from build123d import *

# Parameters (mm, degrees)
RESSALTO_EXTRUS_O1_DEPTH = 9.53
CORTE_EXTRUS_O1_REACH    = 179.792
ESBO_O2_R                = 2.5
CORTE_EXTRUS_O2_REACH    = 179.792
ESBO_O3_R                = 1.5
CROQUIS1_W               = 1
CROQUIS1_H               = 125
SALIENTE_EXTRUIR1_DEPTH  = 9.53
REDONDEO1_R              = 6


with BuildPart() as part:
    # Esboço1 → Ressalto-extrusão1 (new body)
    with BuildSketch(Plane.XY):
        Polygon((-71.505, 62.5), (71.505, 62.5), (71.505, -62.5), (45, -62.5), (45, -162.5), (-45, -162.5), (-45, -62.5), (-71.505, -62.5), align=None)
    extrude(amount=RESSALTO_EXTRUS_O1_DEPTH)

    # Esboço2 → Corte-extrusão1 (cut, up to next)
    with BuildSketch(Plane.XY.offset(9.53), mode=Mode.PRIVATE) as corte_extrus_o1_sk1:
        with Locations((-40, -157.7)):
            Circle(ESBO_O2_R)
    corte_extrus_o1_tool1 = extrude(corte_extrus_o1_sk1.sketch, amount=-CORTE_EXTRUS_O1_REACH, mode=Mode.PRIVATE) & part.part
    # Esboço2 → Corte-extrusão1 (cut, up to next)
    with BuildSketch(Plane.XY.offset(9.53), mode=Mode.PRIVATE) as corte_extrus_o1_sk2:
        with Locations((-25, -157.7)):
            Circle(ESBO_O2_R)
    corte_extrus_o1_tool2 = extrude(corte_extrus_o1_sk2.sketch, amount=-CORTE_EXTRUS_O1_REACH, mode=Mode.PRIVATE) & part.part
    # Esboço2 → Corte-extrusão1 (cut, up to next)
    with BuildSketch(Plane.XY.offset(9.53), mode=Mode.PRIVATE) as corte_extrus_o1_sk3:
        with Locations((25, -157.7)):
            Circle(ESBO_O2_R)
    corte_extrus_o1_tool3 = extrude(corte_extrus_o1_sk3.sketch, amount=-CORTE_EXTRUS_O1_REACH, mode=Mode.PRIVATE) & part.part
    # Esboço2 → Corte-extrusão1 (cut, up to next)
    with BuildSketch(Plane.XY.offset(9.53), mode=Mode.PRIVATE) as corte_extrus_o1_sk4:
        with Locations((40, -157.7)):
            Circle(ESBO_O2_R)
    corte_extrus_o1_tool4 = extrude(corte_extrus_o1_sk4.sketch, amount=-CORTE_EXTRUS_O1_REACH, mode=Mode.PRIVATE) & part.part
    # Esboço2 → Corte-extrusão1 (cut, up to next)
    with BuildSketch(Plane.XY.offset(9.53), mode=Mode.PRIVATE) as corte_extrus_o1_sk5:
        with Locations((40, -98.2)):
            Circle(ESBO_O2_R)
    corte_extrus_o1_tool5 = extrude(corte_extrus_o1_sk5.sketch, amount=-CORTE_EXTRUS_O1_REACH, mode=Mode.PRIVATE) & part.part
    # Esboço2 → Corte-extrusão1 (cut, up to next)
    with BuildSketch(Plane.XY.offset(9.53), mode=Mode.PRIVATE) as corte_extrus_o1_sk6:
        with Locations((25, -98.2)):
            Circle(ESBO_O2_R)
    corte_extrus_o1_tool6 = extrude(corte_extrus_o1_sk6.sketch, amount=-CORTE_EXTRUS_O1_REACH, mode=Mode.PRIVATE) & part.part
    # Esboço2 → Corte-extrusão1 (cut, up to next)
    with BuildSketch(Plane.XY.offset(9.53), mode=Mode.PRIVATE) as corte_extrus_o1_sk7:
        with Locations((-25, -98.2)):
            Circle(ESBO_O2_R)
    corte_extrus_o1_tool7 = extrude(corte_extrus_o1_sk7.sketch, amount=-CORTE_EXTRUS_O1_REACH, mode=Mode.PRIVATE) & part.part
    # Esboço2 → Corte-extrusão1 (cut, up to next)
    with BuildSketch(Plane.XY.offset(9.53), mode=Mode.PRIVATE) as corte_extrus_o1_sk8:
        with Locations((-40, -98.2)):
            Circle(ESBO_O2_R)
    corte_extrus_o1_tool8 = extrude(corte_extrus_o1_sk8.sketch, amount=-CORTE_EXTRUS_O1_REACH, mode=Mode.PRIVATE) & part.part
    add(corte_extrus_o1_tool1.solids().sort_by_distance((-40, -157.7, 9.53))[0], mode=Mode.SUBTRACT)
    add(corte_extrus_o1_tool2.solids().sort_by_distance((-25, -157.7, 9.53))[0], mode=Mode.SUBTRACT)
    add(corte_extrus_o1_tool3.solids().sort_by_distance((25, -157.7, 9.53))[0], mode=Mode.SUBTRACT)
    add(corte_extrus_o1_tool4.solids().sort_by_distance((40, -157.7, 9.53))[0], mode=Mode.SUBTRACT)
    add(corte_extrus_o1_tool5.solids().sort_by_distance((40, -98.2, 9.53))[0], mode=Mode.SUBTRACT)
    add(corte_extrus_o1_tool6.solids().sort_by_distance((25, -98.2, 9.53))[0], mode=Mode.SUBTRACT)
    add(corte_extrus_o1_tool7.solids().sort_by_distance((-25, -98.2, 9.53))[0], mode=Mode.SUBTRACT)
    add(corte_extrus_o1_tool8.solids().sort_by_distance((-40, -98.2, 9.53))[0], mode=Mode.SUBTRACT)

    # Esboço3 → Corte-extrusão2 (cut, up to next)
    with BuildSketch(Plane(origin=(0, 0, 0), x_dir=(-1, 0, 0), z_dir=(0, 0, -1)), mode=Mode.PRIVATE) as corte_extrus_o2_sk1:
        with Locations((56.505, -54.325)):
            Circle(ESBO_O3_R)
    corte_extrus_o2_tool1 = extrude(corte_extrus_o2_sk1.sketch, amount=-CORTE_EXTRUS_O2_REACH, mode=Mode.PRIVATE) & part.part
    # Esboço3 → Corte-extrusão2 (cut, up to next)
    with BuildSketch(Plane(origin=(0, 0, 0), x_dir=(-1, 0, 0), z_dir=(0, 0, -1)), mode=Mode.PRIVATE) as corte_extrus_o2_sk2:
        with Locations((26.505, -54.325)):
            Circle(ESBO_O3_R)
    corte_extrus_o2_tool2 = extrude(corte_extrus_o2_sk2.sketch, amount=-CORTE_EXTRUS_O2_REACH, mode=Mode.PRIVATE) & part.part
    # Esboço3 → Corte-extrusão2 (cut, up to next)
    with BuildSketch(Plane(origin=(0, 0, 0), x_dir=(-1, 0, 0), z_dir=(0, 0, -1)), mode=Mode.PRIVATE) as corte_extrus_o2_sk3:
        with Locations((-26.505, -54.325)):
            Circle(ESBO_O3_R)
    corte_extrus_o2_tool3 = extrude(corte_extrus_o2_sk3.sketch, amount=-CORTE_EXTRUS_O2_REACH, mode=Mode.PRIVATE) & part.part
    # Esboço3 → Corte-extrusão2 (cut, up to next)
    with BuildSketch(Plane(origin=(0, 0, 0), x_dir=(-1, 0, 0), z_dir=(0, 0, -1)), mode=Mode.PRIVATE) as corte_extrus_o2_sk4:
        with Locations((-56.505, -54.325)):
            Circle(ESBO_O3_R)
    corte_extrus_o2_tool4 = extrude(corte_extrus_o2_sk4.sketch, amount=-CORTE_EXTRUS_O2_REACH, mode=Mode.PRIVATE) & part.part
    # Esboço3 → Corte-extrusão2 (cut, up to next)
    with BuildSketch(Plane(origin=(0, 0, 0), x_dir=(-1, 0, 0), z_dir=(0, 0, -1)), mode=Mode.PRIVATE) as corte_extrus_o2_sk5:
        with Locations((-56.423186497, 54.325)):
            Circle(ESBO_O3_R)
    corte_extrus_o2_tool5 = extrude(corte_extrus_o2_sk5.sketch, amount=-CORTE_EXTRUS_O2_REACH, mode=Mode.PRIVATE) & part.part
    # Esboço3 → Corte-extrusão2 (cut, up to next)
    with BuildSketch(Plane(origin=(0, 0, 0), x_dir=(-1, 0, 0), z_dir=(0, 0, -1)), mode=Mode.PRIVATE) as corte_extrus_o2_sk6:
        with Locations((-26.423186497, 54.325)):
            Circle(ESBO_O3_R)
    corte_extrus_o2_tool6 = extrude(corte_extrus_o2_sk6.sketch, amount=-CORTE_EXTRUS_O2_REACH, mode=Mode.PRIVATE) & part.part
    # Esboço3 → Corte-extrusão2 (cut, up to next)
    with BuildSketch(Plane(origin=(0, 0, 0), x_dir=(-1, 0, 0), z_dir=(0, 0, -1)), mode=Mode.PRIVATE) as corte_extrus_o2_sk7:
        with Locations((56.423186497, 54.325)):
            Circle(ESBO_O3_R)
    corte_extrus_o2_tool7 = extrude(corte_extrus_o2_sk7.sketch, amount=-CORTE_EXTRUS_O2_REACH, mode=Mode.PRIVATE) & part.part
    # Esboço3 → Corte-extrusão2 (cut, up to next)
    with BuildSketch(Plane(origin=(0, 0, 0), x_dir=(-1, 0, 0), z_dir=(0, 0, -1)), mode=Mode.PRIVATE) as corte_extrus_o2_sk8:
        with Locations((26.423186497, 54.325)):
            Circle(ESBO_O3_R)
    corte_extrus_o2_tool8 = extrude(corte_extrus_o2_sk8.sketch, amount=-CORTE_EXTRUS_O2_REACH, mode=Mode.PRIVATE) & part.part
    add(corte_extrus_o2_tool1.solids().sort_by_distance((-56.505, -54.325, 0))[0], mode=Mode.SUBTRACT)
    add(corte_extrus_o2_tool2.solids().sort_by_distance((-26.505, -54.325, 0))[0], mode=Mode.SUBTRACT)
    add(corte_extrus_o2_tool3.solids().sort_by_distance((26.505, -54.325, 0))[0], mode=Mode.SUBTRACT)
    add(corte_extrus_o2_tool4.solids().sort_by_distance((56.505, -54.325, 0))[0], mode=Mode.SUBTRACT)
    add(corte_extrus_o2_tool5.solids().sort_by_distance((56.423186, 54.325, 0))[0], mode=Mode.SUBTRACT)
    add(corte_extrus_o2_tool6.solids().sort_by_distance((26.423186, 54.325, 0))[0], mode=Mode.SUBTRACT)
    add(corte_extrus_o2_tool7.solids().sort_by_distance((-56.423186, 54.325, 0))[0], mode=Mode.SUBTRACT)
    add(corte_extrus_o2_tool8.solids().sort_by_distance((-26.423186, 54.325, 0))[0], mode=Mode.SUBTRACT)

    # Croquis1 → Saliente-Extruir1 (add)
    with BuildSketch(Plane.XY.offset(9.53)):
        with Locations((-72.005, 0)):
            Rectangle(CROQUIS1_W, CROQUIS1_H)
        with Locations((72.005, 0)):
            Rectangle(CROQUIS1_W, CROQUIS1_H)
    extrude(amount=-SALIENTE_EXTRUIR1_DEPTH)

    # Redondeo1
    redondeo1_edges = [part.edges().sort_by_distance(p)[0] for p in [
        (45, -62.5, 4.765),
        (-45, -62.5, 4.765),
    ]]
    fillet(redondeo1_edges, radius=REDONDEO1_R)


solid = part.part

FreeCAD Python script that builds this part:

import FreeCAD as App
import Part
import Sketcher
Q = App.Units.Quantity


def edges_at(feature, points):
    """Names of the edges that pass closest to the given points."""
    edges = feature.Shape.Edges
    near = lambda p: min(range(len(edges)), key=lambda i: edges[i].distToShape(Part.Vertex(*p))[0])
    return sorted({f"Edge{near(p) + 1}" for p in points})

doc = App.newDocument("Part")
body = doc.addObject("PartDesign::Body", "Body")

sketch1 = body.newObject("Sketcher::SketchObject", "Sketch")
sketch1.AttachmentSupport = (doc.getObject("XY_Plane"), [""])
sketch1.MapMode = "FlatFace"
sketch1.addGeometry(Part.LineSegment(App.Vector(71.505, 62.5, 0), App.Vector(-71.505, 62.5, 0)), False)
sketch1.addGeometry(Part.LineSegment(App.Vector(-71.505, 62.5, 0), App.Vector(-71.505, -62.5, 0)), False)
sketch1.addGeometry(Part.LineSegment(App.Vector(-71.505, -62.5, 0), App.Vector(-45, -62.5, 0)), False)
sketch1.addGeometry(Part.LineSegment(App.Vector(-45, -62.5, 0), App.Vector(-45, -162.5, 0)), False)
sketch1.addGeometry(Part.LineSegment(App.Vector(-45, -162.5, 0), App.Vector(45, -162.5, 0)), False)
sketch1.addGeometry(Part.LineSegment(App.Vector(45, -162.5, 0), App.Vector(45, -62.5, 0)), False)
sketch1.addGeometry(Part.LineSegment(App.Vector(45, -62.5, 0), App.Vector(71.505, -62.5, 0)), False)
sketch1.addGeometry(Part.LineSegment(App.Vector(71.505, -62.5, 0), App.Vector(71.505, 62.5, 0)), False)
sketch1.addConstraint(Sketcher.Constraint("Coincident", 0, 2, 1, 1))
sketch1.addConstraint(Sketcher.Constraint("Coincident", 1, 2, 2, 1))
sketch1.addConstraint(Sketcher.Constraint("Coincident", 2, 2, 3, 1))
sketch1.addConstraint(Sketcher.Constraint("Coincident", 3, 2, 4, 1))
sketch1.addConstraint(Sketcher.Constraint("Coincident", 4, 2, 5, 1))
sketch1.addConstraint(Sketcher.Constraint("Coincident", 5, 2, 6, 1))
sketch1.addConstraint(Sketcher.Constraint("Coincident", 6, 2, 7, 1))
sketch1.addConstraint(Sketcher.Constraint("Coincident", 7, 2, 0, 1))
sketch1.addConstraint(Sketcher.Constraint("Horizontal", 0))
sketch1.addConstraint(Sketcher.Constraint("Vertical", 1))
sketch1.addConstraint(Sketcher.Constraint("Horizontal", 2))
sketch1.addConstraint(Sketcher.Constraint("Vertical", 3))
sketch1.addConstraint(Sketcher.Constraint("Horizontal", 4))
sketch1.addConstraint(Sketcher.Constraint("Vertical", 5))
sketch1.addConstraint(Sketcher.Constraint("Horizontal", 6))
sketch1.addConstraint(Sketcher.Constraint("Vertical", 7))
sketch1.addConstraint(Sketcher.Constraint("Symmetric", 0, 2, 6, 2, -1, 1))
sketch1.addConstraint(Sketcher.Constraint("Symmetric", 2, 2, 5, 2, -2))
sketch1.addConstraint(Sketcher.Constraint("DistanceX", 4, 1, 4, 2, Q("90 mm")))
sketch1.addConstraint(Sketcher.Constraint("DistanceY", 1, 2, 1, 1, Q("125 mm")))
sketch1.addConstraint(Sketcher.Constraint("DistanceY", 3, 2, 3, 1, Q("100 mm")))
sketch1.addConstraint(Sketcher.Constraint("DistanceX", 0, 2, 0, 1, Q("143.01 mm")))
pad1 = body.newObject("PartDesign::Pad", "Pad")
pad1.Profile = sketch1
pad1.Length = 9.53

sketch2 = body.newObject("Sketcher::SketchObject", "Sketch001")
sketch2.AttachmentSupport = (doc.getObject("XY_Plane"), [""])
sketch2.MapMode = "FlatFace"
sketch2.AttachmentOffset = App.Placement(App.Vector(0, 0, 9.53), App.Rotation())
sketch2.addGeometry(Part.Circle(App.Vector(-40, -157.7, 0), App.Vector(0, 0, 1), 2.5), False)
sketch2.addConstraint(Sketcher.Constraint("Diameter", 0, Q("5 mm")))
sketch2.addConstraint(Sketcher.Constraint("DistanceX", 0, 3, -1, 1, Q("40 mm")))
sketch2.addConstraint(Sketcher.Constraint("DistanceY", 0, 3, -1, 1, Q("157.7 mm")))
pocket1 = body.newObject("PartDesign::Pocket", "Pocket")
pocket1.Profile = sketch2
pocket1.Type = "UpToFirst"

sketch3 = body.newObject("Sketcher::SketchObject", "Sketch002")
sketch3.AttachmentSupport = (doc.getObject("XY_Plane"), [""])
sketch3.MapMode = "FlatFace"
sketch3.AttachmentOffset = App.Placement(App.Vector(0, 0, 9.53), App.Rotation())
sketch3.addGeometry(Part.Circle(App.Vector(-25, -157.7, 0), App.Vector(0, 0, 1), 2.5), False)
sketch3.addConstraint(Sketcher.Constraint("Diameter", 0, Q("5 mm")))
sketch3.addConstraint(Sketcher.Constraint("DistanceX", 0, 3, -1, 1, Q("25 mm")))
sketch3.addConstraint(Sketcher.Constraint("DistanceY", 0, 3, -1, 1, Q("157.7 mm")))
pocket2 = body.newObject("PartDesign::Pocket", "Pocket001")
pocket2.Profile = sketch3
pocket2.Type = "UpToFirst"

sketch4 = body.newObject("Sketcher::SketchObject", "Sketch003")
sketch4.AttachmentSupport = (doc.getObject("XY_Plane"), [""])
sketch4.MapMode = "FlatFace"
sketch4.AttachmentOffset = App.Placement(App.Vector(0, 0, 9.53), App.Rotation())
sketch4.addGeometry(Part.Circle(App.Vector(25, -157.7, 0), App.Vector(0, 0, 1), 2.5), False)
sketch4.addConstraint(Sketcher.Constraint("Diameter", 0, Q("5 mm")))
sketch4.addConstraint(Sketcher.Constraint("DistanceX", -1, 1, 0, 3, Q("25 mm")))
sketch4.addConstraint(Sketcher.Constraint("DistanceY", 0, 3, -1, 1, Q("157.7 mm")))
pocket3 = body.newObject("PartDesign::Pocket", "Pocket002")
pocket3.Profile = sketch4
pocket3.Type = "UpToFirst"

sketch5 = body.newObject("Sketcher::SketchObject", "Sketch004")
sketch5.AttachmentSupport = (doc.getObject("XY_Plane"), [""])
sketch5.MapMode = "FlatFace"
sketch5.AttachmentOffset = App.Placement(App.Vector(0, 0, 9.53), App.Rotation())
sketch5.addGeometry(Part.Circle(App.Vector(40, -157.7, 0), App.Vector(0, 0, 1), 2.5), False)
sketch5.addConstraint(Sketcher.Constraint("Diameter", 0, Q("5 mm")))
sketch5.addConstraint(Sketcher.Constraint("DistanceX", -1, 1, 0, 3, Q("40 mm")))
sketch5.addConstraint(Sketcher.Constraint("DistanceY", 0, 3, -1, 1, Q("157.7 mm")))
pocket4 = body.newObject("PartDesign::Pocket", "Pocket003")
pocket4.Profile = sketch5
pocket4.Type = "UpToFirst"

sketch6 = body.newObject("Sketcher::SketchObject", "Sketch005")
sketch6.AttachmentSupport = (doc.getObject("XY_Plane"), [""])
sketch6.MapMode = "FlatFace"
sketch6.AttachmentOffset = App.Placement(App.Vector(0, 0, 9.53), App.Rotation())
sketch6.addGeometry(Part.Circle(App.Vector(40, -98.2, 0), App.Vector(0, 0, 1), 2.5), False)
sketch6.addConstraint(Sketcher.Constraint("Diameter", 0, Q("5 mm")))
sketch6.addConstraint(Sketcher.Constraint("DistanceX", -1, 1, 0, 3, Q("40 mm")))
sketch6.addConstraint(Sketcher.Constraint("DistanceY", 0, 3, -1, 1, Q("98.2 mm")))
pocket5 = body.newObject("PartDesign::Pocket", "Pocket004")
pocket5.Profile = sketch6
pocket5.Type = "UpToFirst"

sketch7 = body.newObject("Sketcher::SketchObject", "Sketch006")
sketch7.AttachmentSupport = (doc.getObject("XY_Plane"), [""])
sketch7.MapMode = "FlatFace"
sketch7.AttachmentOffset = App.Placement(App.Vector(0, 0, 9.53), App.Rotation())
sketch7.addGeometry(Part.Circle(App.Vector(25, -98.2, 0), App.Vector(0, 0, 1), 2.5), False)
sketch7.addConstraint(Sketcher.Constraint("Diameter", 0, Q("5 mm")))
sketch7.addConstraint(Sketcher.Constraint("DistanceX", -1, 1, 0, 3, Q("25 mm")))
sketch7.addConstraint(Sketcher.Constraint("DistanceY", 0, 3, -1, 1, Q("98.2 mm")))
pocket6 = body.newObject("PartDesign::Pocket", "Pocket005")
pocket6.Profile = sketch7
pocket6.Type = "UpToFirst"

sketch8 = body.newObject("Sketcher::SketchObject", "Sketch007")
sketch8.AttachmentSupport = (doc.getObject("XY_Plane"), [""])
sketch8.MapMode = "FlatFace"
sketch8.AttachmentOffset = App.Placement(App.Vector(0, 0, 9.53), App.Rotation())
sketch8.addGeometry(Part.Circle(App.Vector(-25, -98.2, 0), App.Vector(0, 0, 1), 2.5), False)
sketch8.addConstraint(Sketcher.Constraint("Diameter", 0, Q("5 mm")))
sketch8.addConstraint(Sketcher.Constraint("DistanceX", 0, 3, -1, 1, Q("25 mm")))
sketch8.addConstraint(Sketcher.Constraint("DistanceY", 0, 3, -1, 1, Q("98.2 mm")))
pocket7 = body.newObject("PartDesign::Pocket", "Pocket006")
pocket7.Profile = sketch8
pocket7.Type = "UpToFirst"

sketch9 = body.newObject("Sketcher::SketchObject", "Sketch008")
sketch9.AttachmentSupport = (doc.getObject("XY_Plane"), [""])
sketch9.MapMode = "FlatFace"
sketch9.AttachmentOffset = App.Placement(App.Vector(0, 0, 9.53), App.Rotation())
sketch9.addGeometry(Part.Circle(App.Vector(-40, -98.2, 0), App.Vector(0, 0, 1), 2.5), False)
sketch9.addConstraint(Sketcher.Constraint("Diameter", 0, Q("5 mm")))
sketch9.addConstraint(Sketcher.Constraint("DistanceX", 0, 3, -1, 1, Q("40 mm")))
sketch9.addConstraint(Sketcher.Constraint("DistanceY", 0, 3, -1, 1, Q("98.2 mm")))
pocket8 = body.newObject("PartDesign::Pocket", "Pocket007")
pocket8.Profile = sketch9
pocket8.Type = "UpToFirst"

sketch10 = body.newObject("Sketcher::SketchObject", "Sketch009")
sketch10.AttachmentSupport = (doc.getObject("XY_Plane"), [""])
sketch10.MapMode = "FlatFace"
sketch10.addGeometry(Part.Circle(App.Vector(-56.505, -54.325, 0), App.Vector(0, 0, 1), 1.5), False)
sketch10.addConstraint(Sketcher.Constraint("Diameter", 0, Q("3 mm")))
sketch10.addConstraint(Sketcher.Constraint("DistanceX", 0, 3, -1, 1, Q("56.505 mm")))
sketch10.addConstraint(Sketcher.Constraint("DistanceY", 0, 3, -1, 1, Q("54.325 mm")))
pocket9 = body.newObject("PartDesign::Pocket", "Pocket008")
pocket9.Profile = sketch10
pocket9.Type = "UpToFirst"
pocket9.Reversed = True

sketch11 = body.newObject("Sketcher::SketchObject", "Sketch010")
sketch11.AttachmentSupport = (doc.getObject("XY_Plane"), [""])
sketch11.MapMode = "FlatFace"
sketch11.addGeometry(Part.Circle(App.Vector(-26.505, -54.325, 0), App.Vector(0, 0, 1), 1.5), False)
sketch11.addConstraint(Sketcher.Constraint("Diameter", 0, Q("3 mm")))
sketch11.addConstraint(Sketcher.Constraint("DistanceX", 0, 3, -1, 1, Q("26.505 mm")))
sketch11.addConstraint(Sketcher.Constraint("DistanceY", 0, 3, -1, 1, Q("54.325 mm")))
pocket10 = body.newObject("PartDesign::Pocket", "Pocket009")
pocket10.Profile = sketch11
pocket10.Type = "UpToFirst"
pocket10.Reversed = True

sketch12 = body.newObject("Sketcher::SketchObject", "Sketch011")
sketch12.AttachmentSupport = (doc.getObject("XY_Plane"), [""])
sketch12.MapMode = "FlatFace"
sketch12.addGeometry(Part.Circle(App.Vector(26.505, -54.325, 0), App.Vector(0, 0, 1), 1.5), False)
sketch12.addConstraint(Sketcher.Constraint("Diameter", 0, Q("3 mm")))
sketch12.addConstraint(Sketcher.Constraint("DistanceX", -1, 1, 0, 3, Q("26.505 mm")))
sketch12.addConstraint(Sketcher.Constraint("DistanceY", 0, 3, -1, 1, Q("54.325 mm")))
pocket11 = body.newObject("PartDesign::Pocket", "Pocket010")
pocket11.Profile = sketch12
pocket11.Type = "UpToFirst"
pocket11.Reversed = True

sketch13 = body.newObject("Sketcher::SketchObject", "Sketch012")
sketch13.AttachmentSupport = (doc.getObject("XY_Plane"), [""])
sketch13.MapMode = "FlatFace"
sketch13.addGeometry(Part.Circle(App.Vector(56.505, -54.325, 0), App.Vector(0, 0, 1), 1.5), False)
sketch13.addConstraint(Sketcher.Constraint("Diameter", 0, Q("3 mm")))
sketch13.addConstraint(Sketcher.Constraint("DistanceX", -1, 1, 0, 3, Q("56.505 mm")))
sketch13.addConstraint(Sketcher.Constraint("DistanceY", 0, 3, -1, 1, Q("54.325 mm")))
pocket12 = body.newObject("PartDesign::Pocket", "Pocket011")
pocket12.Profile = sketch13
pocket12.Type = "UpToFirst"
pocket12.Reversed = True

sketch14 = body.newObject("Sketcher::SketchObject", "Sketch013")
sketch14.AttachmentSupport = (doc.getObject("XY_Plane"), [""])
sketch14.MapMode = "FlatFace"
sketch14.addGeometry(Part.Circle(App.Vector(56.423186, 54.325, 0), App.Vector(0, 0, 1), 1.5), False)
sketch14.addConstraint(Sketcher.Constraint("Diameter", 0, Q("3 mm")))
sketch14.addConstraint(Sketcher.Constraint("DistanceY", -1, 1, 0, 3, Q("54.325 mm")))
sketch14.addConstraint(Sketcher.Constraint("DistanceX", -1, 1, 0, 3, Q("56.423186 mm")))
pocket13 = body.newObject("PartDesign::Pocket", "Pocket012")
pocket13.Profile = sketch14
pocket13.Type = "UpToFirst"
pocket13.Reversed = True

sketch15 = body.newObject("Sketcher::SketchObject", "Sketch014")
sketch15.AttachmentSupport = (doc.getObject("XY_Plane"), [""])
sketch15.MapMode = "FlatFace"
sketch15.addGeometry(Part.Circle(App.Vector(26.423186, 54.325, 0), App.Vector(0, 0, 1), 1.5), False)
sketch15.addConstraint(Sketcher.Constraint("Diameter", 0, Q("3 mm")))
sketch15.addConstraint(Sketcher.Constraint("DistanceY", -1, 1, 0, 3, Q("54.325 mm")))
sketch15.addConstraint(Sketcher.Constraint("DistanceX", -1, 1, 0, 3, Q("26.423186 mm")))
pocket14 = body.newObject("PartDesign::Pocket", "Pocket013")
pocket14.Profile = sketch15
pocket14.Type = "UpToFirst"
pocket14.Reversed = True

sketch16 = body.newObject("Sketcher::SketchObject", "Sketch015")
sketch16.AttachmentSupport = (doc.getObject("XY_Plane"), [""])
sketch16.MapMode = "FlatFace"
sketch16.addGeometry(Part.Circle(App.Vector(-56.423186, 54.325, 0), App.Vector(0, 0, 1), 1.5), False)
sketch16.addConstraint(Sketcher.Constraint("Diameter", 0, Q("3 mm")))
sketch16.addConstraint(Sketcher.Constraint("DistanceY", -1, 1, 0, 3, Q("54.325 mm")))
sketch16.addConstraint(Sketcher.Constraint("DistanceX", 0, 3, -1, 1, Q("56.423186 mm")))
pocket15 = body.newObject("PartDesign::Pocket", "Pocket014")
pocket15.Profile = sketch16
pocket15.Type = "UpToFirst"
pocket15.Reversed = True

sketch17 = body.newObject("Sketcher::SketchObject", "Sketch016")
sketch17.AttachmentSupport = (doc.getObject("XY_Plane"), [""])
sketch17.MapMode = "FlatFace"
sketch17.addGeometry(Part.Circle(App.Vector(-26.423186, 54.325, 0), App.Vector(0, 0, 1), 1.5), False)
sketch17.addConstraint(Sketcher.Constraint("Diameter", 0, Q("3 mm")))
sketch17.addConstraint(Sketcher.Constraint("DistanceY", -1, 1, 0, 3, Q("54.325 mm")))
sketch17.addConstraint(Sketcher.Constraint("DistanceX", 0, 3, -1, 1, Q("26.423186 mm")))
pocket16 = body.newObject("PartDesign::Pocket", "Pocket015")
pocket16.Profile = sketch17
pocket16.Type = "UpToFirst"
pocket16.Reversed = True

sketch18 = body.newObject("Sketcher::SketchObject", "Sketch017")
sketch18.AttachmentSupport = (doc.getObject("XY_Plane"), [""])
sketch18.MapMode = "FlatFace"
sketch18.AttachmentOffset = App.Placement(App.Vector(0, 0, 9.53), App.Rotation())
sketch18.addGeometry(Part.LineSegment(App.Vector(-72.505, 62.5, 0), App.Vector(-72.505, -62.5, 0)), False)
sketch18.addGeometry(Part.LineSegment(App.Vector(-72.505, -62.5, 0), App.Vector(-71.505, -62.5, 0)), False)
sketch18.addGeometry(Part.LineSegment(App.Vector(-71.505, -62.5, 0), App.Vector(-71.505, 62.5, 0)), False)
sketch18.addGeometry(Part.LineSegment(App.Vector(-71.505, 62.5, 0), App.Vector(-72.505, 62.5, 0)), False)
sketch18.addGeometry(Part.LineSegment(App.Vector(71.505, 62.5, 0), App.Vector(71.505, -62.5, 0)), False)
sketch18.addGeometry(Part.LineSegment(App.Vector(71.505, -62.5, 0), App.Vector(72.505, -62.5, 0)), False)
sketch18.addGeometry(Part.LineSegment(App.Vector(72.505, -62.5, 0), App.Vector(72.505, 62.5, 0)), False)
sketch18.addGeometry(Part.LineSegment(App.Vector(72.505, 62.5, 0), App.Vector(71.505, 62.5, 0)), False)
sketch18.addConstraint(Sketcher.Constraint("Coincident", 0, 2, 1, 1))
sketch18.addConstraint(Sketcher.Constraint("Coincident", 1, 2, 2, 1))
sketch18.addConstraint(Sketcher.Constraint("Coincident", 2, 2, 3, 1))
sketch18.addConstraint(Sketcher.Constraint("Coincident", 3, 2, 0, 1))
sketch18.addConstraint(Sketcher.Constraint("Coincident", 4, 2, 5, 1))
sketch18.addConstraint(Sketcher.Constraint("Coincident", 5, 2, 6, 1))
sketch18.addConstraint(Sketcher.Constraint("Coincident", 6, 2, 7, 1))
sketch18.addConstraint(Sketcher.Constraint("Coincident", 7, 2, 4, 1))
sketch18.addConstraint(Sketcher.Constraint("Vertical", 0))
sketch18.addConstraint(Sketcher.Constraint("Horizontal", 1))
sketch18.addConstraint(Sketcher.Constraint("Vertical", 2))
sketch18.addConstraint(Sketcher.Constraint("Horizontal", 3))
sketch18.addConstraint(Sketcher.Constraint("Vertical", 4))
sketch18.addConstraint(Sketcher.Constraint("Horizontal", 5))
sketch18.addConstraint(Sketcher.Constraint("Vertical", 6))
sketch18.addConstraint(Sketcher.Constraint("Horizontal", 7))
sketch18.addConstraint(Sketcher.Constraint("Symmetric", 2, 2, 4, 2, -1, 1))
sketch18.addConstraint(Sketcher.Constraint("Symmetric", 0, 2, 6, 2, -1, 1))
sketch18.addConstraint(Sketcher.Constraint("Horizontal", 1, 2, 4, 2))
sketch18.addConstraint(Sketcher.Constraint("DistanceX", 1, 1, 1, 2, Q("1 mm")))
sketch18.addConstraint(Sketcher.Constraint("DistanceY", 0, 2, 0, 1, Q("125 mm")))
sketch18.addConstraint(Sketcher.Constraint("DistanceX", 1, 2, 4, 2, Q("143.01 mm")))
pad2 = body.newObject("PartDesign::Pad", "Pad001")
pad2.Profile = sketch18
pad2.Length = 9.53
pad2.Reversed = True
doc.recompute()

fillet = body.newObject("PartDesign::Fillet", "Fillet")
fillet.Base = (pad2, edges_at(pad2, [(45, -62.5, 4.765), (-45, -62.5, 4.765)]))
fillet.Radius = 6

doc.recompute()
